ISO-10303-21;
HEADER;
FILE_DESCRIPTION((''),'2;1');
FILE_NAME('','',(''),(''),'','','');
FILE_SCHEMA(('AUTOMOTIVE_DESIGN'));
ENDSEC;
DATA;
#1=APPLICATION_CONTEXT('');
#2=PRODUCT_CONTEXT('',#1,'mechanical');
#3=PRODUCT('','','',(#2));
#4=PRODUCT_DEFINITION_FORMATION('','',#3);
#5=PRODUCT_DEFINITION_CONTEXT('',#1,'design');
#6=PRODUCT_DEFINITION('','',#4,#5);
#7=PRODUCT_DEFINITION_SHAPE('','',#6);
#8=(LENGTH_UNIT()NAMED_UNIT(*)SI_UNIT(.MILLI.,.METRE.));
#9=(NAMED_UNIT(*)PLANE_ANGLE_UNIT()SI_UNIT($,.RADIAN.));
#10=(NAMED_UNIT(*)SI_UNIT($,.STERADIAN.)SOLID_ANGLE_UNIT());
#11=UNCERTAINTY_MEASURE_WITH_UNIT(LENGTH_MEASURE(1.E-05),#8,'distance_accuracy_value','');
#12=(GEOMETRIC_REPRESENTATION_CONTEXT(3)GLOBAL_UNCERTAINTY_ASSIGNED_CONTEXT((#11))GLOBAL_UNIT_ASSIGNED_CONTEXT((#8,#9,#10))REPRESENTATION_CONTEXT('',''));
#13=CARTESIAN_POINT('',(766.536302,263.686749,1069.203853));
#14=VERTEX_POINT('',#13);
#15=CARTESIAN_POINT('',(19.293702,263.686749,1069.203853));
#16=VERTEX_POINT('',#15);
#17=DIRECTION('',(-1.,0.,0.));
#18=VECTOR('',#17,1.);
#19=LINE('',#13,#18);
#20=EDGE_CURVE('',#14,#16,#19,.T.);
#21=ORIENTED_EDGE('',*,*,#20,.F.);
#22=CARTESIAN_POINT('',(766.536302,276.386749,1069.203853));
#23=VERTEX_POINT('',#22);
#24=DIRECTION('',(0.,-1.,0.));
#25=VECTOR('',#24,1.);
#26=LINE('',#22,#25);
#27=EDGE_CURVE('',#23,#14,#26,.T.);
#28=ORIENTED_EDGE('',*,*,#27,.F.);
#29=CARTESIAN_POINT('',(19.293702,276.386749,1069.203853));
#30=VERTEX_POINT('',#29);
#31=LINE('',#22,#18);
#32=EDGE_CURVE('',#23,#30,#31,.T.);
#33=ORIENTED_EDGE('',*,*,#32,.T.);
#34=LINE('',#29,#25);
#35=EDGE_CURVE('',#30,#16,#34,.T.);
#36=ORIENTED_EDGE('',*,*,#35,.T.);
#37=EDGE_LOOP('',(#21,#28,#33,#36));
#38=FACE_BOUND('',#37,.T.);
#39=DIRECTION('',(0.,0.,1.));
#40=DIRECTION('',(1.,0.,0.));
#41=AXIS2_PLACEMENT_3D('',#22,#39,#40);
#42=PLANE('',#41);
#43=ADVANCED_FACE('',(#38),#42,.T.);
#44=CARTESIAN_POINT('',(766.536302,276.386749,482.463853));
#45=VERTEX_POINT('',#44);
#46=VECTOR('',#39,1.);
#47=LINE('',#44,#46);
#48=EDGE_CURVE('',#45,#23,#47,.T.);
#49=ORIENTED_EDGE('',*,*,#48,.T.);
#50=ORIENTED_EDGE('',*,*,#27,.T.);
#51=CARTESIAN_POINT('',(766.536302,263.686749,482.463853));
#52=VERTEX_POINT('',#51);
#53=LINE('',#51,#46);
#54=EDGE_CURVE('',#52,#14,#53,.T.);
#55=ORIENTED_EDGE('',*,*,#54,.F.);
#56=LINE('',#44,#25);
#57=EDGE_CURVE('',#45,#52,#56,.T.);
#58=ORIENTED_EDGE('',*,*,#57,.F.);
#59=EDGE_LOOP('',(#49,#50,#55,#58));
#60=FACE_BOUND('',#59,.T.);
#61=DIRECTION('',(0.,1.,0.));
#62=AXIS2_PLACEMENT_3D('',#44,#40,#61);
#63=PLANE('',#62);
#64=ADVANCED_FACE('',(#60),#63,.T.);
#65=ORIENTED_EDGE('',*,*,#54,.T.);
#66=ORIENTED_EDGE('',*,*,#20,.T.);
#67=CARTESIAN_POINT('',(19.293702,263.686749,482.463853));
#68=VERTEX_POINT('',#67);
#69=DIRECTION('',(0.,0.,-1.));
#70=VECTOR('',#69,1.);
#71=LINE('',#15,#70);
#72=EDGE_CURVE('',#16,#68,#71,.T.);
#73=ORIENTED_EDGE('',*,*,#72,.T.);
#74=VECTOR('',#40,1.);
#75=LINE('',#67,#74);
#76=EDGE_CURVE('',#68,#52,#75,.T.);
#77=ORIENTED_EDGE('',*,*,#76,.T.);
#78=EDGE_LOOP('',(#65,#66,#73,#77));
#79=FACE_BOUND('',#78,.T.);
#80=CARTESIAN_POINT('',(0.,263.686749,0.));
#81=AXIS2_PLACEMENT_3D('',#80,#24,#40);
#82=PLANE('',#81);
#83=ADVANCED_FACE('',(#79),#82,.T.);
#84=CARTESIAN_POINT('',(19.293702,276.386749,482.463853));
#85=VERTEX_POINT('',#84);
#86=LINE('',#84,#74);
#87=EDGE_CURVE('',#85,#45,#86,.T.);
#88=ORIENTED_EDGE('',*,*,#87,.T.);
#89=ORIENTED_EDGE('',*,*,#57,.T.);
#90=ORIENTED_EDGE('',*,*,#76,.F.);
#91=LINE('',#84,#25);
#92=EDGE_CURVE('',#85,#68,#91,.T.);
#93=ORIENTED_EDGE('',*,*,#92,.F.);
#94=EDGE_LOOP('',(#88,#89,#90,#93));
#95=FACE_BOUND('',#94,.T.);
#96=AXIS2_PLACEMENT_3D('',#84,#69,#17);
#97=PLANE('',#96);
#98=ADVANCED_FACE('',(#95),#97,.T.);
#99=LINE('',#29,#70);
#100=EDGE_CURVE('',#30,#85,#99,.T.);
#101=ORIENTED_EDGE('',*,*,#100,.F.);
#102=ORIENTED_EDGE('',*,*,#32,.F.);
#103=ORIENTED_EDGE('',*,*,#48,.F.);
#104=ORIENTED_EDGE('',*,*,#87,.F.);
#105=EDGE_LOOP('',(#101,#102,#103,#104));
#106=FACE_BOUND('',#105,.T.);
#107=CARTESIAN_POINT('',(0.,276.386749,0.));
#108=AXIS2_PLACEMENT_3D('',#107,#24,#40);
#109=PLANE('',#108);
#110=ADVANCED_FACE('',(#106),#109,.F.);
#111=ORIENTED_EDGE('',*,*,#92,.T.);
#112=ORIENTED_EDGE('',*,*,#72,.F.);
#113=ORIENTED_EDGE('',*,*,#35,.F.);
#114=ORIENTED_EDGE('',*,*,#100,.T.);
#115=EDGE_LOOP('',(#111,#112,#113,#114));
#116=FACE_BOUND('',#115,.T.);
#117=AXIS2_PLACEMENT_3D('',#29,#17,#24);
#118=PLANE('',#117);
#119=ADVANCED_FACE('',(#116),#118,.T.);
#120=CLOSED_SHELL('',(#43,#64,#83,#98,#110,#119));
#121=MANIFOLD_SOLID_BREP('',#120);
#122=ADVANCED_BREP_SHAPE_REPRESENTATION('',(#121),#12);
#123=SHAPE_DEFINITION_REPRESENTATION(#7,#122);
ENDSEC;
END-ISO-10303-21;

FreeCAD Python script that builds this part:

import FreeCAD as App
import Part
import Sketcher
Q = App.Units.Quantity


def add_polygon(sketch, points):
    """Adds a closed chain of lines whose ends are joined by coincident constraints."""
    first, n = sketch.GeometryCount, len(points)
    for a, b in zip(points, points[1:] + points[:1]):
        sketch.addGeometry(Part.LineSegment(App.Vector(*a, 0), App.Vector(*b, 0)), False)
    for i in range(n):
        sketch.addConstraint(Sketcher.Constraint("Coincident", first + i, 2, first + (i + 1) % n, 1))

doc = App.newDocument("Part")
body = doc.addObject("PartDesign::Body", "Body")

sketch1 = doc.addObject("Sketcher::SketchObject", "Sketch")
body.addObject(sketch1)
sketch1.AttachmentSupport = (doc.XZ_Plane, [""])
sketch1.MapMode = "FlatFace"
sketch1.AttachmentOffset = App.Placement(App.Vector(0, 0, -263.686749), App.Rotation())
add_polygon(sketch1, [(19, 1069), (19, 482), (767, 482), (767, 1069)])
sketch1.addConstraint([
    Sketcher.Constraint("Vertical", 0),
    Sketcher.Constraint("Horizontal", 1),
    Sketcher.Constraint("Vertical", 2),
    Sketcher.Constraint("Horizontal", 3),
    Sketcher.Constraint("DistanceY", 0, 2, 0, 1, Q("23.1 in")),
    Sketcher.Constraint("DistanceX", 1, 1, 1, 2, Q("29.419 in")),
    Sketcher.Constraint("DistanceX", -1, 1, 0, 2, Q("19.293702 mm")),
    Sketcher.Constraint("DistanceY", -1, 1, 0, 2, Q("482.463853 mm")),
])
pad1 = doc.addObject("PartDesign::Pad", "Pad")
body.addObject(pad1)
pad1.Profile = sketch1
pad1.Length = Q("0.5 in")
pad1.Reversed = True

doc.recompute()
